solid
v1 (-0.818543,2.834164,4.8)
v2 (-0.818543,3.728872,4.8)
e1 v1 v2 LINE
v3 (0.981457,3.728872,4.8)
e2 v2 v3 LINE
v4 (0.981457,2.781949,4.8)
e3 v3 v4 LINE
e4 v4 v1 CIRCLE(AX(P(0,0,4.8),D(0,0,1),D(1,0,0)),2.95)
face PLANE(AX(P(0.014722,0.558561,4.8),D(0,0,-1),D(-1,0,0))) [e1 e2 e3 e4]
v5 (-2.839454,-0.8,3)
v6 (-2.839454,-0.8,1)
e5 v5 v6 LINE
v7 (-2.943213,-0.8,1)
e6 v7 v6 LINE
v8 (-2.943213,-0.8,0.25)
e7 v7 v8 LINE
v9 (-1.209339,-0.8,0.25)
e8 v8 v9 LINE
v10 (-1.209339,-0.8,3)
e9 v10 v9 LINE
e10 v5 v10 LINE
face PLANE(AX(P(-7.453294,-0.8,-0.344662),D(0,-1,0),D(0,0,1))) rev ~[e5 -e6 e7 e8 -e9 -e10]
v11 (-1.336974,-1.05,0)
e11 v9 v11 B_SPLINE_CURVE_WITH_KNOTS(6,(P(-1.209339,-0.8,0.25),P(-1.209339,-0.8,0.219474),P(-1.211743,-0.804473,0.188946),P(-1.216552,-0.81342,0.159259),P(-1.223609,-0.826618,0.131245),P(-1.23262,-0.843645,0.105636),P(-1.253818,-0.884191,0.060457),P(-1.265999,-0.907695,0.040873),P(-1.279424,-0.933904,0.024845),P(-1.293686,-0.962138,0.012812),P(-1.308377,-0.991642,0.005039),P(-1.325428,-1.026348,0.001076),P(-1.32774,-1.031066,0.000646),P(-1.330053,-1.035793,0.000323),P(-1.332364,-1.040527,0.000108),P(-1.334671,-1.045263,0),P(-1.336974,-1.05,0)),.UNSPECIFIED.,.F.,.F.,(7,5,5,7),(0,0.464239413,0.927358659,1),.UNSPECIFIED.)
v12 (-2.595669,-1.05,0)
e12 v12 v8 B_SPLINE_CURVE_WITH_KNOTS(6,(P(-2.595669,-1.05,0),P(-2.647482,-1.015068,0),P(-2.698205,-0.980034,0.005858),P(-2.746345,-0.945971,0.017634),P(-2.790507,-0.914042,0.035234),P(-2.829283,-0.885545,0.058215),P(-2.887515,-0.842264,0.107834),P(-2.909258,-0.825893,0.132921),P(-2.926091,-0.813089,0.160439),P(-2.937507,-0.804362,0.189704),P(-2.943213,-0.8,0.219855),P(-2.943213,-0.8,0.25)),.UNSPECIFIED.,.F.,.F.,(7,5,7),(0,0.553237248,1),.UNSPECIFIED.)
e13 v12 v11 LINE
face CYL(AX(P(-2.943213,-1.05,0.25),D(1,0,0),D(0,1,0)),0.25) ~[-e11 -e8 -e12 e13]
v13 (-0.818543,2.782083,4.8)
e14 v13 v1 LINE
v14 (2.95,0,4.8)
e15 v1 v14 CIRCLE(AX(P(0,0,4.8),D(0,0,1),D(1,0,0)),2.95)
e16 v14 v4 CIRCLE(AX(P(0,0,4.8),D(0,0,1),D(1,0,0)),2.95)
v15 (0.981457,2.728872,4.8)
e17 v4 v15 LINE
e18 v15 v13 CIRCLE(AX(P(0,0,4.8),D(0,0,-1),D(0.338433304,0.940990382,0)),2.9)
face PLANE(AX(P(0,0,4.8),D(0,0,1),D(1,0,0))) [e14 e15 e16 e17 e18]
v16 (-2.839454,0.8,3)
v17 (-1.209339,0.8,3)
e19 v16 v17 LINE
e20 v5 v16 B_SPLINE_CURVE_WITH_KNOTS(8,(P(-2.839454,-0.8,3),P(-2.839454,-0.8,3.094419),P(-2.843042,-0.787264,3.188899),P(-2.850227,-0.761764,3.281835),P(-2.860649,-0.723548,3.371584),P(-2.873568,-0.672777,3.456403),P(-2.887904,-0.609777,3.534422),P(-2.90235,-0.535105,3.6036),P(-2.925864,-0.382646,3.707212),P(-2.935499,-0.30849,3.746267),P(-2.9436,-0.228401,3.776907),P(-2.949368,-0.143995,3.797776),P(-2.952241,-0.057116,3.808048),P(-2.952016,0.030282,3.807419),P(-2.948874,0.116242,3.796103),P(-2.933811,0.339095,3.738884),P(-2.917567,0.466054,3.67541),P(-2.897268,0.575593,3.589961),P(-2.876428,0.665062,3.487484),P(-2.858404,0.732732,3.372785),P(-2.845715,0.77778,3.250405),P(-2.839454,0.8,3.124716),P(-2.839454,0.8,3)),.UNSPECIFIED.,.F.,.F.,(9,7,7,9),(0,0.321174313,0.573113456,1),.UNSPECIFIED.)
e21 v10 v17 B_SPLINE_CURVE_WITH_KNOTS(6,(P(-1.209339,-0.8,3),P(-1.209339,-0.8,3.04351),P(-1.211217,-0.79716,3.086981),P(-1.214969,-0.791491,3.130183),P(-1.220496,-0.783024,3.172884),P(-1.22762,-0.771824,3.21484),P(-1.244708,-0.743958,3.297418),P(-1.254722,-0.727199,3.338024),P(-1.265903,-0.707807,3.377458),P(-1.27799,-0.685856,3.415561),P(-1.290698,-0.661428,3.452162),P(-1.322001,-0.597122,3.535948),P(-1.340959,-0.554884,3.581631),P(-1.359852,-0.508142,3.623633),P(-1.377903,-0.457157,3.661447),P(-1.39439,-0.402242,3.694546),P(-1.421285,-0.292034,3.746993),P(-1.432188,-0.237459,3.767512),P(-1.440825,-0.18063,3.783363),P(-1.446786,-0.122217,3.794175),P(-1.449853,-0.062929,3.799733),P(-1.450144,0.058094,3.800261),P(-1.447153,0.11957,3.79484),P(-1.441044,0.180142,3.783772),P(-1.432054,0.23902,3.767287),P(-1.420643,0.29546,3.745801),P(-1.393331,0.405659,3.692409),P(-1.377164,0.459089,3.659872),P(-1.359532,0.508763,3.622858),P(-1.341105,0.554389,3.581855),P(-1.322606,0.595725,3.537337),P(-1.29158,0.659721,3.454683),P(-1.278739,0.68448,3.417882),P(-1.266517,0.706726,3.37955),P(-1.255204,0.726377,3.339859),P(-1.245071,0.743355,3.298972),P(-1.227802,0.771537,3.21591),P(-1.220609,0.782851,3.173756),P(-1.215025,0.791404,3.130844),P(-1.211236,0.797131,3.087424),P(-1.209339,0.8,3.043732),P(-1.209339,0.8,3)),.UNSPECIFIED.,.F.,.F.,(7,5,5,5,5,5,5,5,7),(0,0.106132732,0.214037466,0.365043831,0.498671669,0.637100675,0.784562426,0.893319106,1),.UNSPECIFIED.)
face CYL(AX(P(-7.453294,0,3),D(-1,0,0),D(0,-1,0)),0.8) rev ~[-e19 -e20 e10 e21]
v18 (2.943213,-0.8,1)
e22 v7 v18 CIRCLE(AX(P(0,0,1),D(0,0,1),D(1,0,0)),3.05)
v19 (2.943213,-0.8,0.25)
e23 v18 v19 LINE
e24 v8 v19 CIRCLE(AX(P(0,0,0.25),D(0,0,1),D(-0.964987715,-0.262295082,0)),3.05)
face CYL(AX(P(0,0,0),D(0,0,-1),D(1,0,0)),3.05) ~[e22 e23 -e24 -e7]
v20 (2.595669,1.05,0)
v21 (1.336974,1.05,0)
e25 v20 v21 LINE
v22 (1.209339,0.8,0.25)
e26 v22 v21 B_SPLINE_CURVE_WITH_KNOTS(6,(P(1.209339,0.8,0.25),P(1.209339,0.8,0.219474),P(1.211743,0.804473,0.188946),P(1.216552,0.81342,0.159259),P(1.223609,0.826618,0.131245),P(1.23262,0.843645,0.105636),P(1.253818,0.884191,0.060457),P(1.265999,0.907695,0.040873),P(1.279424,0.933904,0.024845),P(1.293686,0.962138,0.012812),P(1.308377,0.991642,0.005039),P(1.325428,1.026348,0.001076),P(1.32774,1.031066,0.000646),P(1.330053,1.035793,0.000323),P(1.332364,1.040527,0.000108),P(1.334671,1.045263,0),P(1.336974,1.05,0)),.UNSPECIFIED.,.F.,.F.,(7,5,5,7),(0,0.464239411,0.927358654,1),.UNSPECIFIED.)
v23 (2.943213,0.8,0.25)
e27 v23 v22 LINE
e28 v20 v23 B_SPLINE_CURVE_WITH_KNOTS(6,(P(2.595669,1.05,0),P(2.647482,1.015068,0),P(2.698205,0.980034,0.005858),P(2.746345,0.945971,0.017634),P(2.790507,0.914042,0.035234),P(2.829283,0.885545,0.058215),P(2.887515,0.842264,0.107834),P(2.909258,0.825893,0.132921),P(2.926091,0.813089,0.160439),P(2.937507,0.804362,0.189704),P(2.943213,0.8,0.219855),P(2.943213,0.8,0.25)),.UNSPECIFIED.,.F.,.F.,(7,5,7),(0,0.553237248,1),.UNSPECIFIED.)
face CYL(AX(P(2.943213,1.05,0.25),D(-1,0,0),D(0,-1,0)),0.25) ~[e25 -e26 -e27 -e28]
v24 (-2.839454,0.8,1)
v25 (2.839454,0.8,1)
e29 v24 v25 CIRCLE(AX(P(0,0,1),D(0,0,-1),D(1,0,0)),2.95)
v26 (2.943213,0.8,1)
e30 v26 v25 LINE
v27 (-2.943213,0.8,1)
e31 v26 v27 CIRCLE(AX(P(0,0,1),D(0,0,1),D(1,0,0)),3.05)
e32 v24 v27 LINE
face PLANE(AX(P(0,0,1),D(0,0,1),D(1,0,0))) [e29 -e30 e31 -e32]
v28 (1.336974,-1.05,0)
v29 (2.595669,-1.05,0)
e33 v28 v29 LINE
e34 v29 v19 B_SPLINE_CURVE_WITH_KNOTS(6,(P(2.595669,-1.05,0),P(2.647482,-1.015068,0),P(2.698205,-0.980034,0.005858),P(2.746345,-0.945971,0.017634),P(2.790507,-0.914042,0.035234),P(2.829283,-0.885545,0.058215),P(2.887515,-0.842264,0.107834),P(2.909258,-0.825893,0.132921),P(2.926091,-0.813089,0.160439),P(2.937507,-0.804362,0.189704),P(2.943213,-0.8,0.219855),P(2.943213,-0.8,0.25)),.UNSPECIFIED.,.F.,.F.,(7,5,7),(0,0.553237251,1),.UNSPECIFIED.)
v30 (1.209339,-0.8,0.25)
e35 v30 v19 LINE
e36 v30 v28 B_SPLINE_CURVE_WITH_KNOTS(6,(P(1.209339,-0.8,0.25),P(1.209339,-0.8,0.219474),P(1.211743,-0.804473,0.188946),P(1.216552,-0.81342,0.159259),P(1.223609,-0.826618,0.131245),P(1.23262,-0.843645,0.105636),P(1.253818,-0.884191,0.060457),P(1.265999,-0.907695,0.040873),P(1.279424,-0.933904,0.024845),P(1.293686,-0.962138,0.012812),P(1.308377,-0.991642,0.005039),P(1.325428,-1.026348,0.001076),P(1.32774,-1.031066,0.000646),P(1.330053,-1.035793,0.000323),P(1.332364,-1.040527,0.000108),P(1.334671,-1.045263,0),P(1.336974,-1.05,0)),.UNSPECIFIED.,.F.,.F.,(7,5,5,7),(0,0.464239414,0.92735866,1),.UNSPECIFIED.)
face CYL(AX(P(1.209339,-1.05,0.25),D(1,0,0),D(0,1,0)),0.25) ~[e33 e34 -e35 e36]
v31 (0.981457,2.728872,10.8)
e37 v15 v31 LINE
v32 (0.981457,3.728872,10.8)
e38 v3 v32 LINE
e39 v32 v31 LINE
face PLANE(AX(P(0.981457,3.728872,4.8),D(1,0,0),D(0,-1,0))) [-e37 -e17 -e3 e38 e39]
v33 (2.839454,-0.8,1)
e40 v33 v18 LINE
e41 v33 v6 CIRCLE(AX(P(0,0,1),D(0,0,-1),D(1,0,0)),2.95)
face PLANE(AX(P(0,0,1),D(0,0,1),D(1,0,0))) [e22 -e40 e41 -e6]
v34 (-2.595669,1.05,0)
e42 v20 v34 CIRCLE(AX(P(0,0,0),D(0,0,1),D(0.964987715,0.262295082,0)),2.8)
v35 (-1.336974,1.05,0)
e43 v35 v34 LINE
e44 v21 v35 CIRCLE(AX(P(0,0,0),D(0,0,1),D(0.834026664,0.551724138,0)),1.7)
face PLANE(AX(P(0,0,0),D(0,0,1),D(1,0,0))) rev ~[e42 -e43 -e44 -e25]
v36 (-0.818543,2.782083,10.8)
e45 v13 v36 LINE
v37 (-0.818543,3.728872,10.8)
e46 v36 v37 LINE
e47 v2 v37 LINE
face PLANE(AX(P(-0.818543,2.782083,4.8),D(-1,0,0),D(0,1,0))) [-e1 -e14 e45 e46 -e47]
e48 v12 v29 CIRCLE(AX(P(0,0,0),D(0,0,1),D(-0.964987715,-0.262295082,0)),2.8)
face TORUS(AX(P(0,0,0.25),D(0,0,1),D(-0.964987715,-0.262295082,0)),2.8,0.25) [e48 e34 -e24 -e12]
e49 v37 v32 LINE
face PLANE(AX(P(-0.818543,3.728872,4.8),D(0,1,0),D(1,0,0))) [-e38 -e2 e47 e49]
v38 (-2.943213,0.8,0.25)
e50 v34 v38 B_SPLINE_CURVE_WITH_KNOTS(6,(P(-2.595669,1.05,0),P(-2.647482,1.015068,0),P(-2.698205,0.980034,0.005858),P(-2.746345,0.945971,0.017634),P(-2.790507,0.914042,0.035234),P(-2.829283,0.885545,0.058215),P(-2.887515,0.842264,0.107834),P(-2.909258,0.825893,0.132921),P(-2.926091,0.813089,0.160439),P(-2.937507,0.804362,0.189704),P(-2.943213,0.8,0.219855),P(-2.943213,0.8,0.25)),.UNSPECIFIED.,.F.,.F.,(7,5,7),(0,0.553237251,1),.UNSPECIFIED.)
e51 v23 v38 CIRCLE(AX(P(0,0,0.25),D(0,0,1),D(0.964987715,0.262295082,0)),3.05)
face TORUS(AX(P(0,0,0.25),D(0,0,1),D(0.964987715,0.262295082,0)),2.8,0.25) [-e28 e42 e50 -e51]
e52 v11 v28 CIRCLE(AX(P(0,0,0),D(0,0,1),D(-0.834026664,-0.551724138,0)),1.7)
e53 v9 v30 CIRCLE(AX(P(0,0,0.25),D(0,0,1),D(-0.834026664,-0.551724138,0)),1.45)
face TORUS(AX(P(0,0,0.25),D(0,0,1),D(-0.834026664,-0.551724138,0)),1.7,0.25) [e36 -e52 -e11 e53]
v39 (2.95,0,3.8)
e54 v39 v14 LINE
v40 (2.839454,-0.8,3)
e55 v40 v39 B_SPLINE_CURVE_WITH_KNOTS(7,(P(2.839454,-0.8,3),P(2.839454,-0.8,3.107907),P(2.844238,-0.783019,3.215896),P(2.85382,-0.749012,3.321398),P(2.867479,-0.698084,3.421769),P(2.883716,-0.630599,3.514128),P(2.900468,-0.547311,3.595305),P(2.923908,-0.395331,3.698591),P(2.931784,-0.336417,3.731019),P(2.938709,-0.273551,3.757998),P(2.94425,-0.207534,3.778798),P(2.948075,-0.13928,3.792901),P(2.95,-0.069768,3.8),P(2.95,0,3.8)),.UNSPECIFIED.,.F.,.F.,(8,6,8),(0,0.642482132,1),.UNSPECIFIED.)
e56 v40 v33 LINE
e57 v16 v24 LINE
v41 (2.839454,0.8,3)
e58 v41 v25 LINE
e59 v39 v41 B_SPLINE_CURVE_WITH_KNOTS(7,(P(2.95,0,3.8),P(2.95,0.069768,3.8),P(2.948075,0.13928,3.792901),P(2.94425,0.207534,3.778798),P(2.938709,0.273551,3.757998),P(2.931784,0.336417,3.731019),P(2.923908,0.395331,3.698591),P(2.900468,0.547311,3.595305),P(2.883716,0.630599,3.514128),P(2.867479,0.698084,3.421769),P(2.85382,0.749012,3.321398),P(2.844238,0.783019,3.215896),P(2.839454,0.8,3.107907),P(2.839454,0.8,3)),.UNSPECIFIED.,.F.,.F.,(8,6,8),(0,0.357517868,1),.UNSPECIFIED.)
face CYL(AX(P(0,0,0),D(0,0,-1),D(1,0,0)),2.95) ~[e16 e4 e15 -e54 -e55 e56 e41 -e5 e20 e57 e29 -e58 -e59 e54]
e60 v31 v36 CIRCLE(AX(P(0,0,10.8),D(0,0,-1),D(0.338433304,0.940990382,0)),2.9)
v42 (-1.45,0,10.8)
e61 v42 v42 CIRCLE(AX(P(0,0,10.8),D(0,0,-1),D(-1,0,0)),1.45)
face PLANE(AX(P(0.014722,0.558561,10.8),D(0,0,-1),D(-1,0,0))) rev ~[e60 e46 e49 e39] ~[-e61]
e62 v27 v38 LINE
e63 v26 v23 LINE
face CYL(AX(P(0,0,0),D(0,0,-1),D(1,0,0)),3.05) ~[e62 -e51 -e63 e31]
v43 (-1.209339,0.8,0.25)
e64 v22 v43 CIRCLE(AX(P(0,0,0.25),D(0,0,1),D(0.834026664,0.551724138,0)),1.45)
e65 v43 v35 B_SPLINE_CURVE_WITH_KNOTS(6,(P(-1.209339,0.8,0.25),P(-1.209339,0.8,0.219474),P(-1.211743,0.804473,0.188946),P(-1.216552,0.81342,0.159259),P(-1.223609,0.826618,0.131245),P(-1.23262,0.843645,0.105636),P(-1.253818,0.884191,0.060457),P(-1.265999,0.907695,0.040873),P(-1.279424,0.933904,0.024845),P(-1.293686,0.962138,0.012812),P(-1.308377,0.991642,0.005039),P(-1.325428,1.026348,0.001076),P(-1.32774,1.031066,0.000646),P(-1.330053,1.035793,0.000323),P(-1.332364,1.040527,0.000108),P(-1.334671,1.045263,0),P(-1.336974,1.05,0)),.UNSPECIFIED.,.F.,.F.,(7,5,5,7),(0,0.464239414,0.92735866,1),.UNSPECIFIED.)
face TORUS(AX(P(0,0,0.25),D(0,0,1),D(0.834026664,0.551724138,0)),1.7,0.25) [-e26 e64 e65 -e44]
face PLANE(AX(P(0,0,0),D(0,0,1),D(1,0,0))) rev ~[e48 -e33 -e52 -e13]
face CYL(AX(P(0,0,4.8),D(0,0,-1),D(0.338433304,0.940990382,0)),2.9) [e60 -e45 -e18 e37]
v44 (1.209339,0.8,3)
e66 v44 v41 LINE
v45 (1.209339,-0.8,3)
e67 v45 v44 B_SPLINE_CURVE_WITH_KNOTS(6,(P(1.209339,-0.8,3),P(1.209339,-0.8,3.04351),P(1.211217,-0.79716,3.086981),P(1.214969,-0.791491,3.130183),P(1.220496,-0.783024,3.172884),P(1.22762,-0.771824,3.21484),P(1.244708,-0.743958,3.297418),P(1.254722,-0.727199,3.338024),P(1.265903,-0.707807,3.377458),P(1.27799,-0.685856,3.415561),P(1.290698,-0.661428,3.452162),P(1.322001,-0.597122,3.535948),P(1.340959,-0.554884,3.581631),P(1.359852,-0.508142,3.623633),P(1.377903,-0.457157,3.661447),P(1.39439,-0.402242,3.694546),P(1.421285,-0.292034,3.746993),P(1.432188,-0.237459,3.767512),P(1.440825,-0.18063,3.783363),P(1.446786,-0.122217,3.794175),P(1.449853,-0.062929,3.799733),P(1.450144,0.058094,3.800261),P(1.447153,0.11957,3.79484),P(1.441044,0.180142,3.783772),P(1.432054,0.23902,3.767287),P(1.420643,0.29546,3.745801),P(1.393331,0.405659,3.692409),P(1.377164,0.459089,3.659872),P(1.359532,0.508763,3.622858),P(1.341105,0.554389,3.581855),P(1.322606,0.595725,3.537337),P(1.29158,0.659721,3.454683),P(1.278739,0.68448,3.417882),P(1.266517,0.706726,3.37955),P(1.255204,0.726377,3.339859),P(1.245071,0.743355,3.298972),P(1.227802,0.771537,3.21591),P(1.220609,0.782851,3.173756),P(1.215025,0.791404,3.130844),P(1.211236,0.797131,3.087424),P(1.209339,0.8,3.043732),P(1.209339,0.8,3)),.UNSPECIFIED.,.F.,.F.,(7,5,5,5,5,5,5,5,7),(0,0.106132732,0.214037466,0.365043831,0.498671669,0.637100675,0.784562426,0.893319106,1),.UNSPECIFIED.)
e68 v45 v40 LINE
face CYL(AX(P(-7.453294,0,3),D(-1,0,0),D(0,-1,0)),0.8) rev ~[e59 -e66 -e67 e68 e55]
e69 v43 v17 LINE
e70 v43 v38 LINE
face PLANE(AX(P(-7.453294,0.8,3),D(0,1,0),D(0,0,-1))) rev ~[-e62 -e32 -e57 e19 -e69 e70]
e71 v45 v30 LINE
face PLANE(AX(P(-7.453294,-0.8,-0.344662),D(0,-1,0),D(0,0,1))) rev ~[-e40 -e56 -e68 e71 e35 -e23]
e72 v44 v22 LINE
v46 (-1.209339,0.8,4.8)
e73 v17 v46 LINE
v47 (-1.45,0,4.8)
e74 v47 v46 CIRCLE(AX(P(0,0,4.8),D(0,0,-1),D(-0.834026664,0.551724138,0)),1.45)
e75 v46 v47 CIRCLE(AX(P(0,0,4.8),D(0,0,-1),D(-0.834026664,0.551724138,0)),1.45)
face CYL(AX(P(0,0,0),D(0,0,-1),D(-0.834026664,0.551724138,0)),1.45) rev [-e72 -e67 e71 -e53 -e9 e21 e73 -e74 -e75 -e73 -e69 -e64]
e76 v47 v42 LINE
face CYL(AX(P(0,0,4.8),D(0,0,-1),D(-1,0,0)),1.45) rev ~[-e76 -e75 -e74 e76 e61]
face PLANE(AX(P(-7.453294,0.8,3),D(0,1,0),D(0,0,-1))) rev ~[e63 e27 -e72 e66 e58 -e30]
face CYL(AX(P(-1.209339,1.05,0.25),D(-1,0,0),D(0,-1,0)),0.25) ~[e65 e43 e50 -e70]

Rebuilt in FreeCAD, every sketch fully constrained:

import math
import FreeCAD as App
import Part
import Sketcher
Q = App.Units.Quantity


def edges_at(feature, points):
    """Names of the edges that pass closest to the given points."""
    edges = feature.Shape.Edges
    near = lambda p: min(range(len(edges)), key=lambda i: edges[i].distToShape(Part.Vertex(*p))[0])
    return sorted({f"Edge{near(p) + 1}" for p in points})

doc = App.newDocument("Part")
body = doc.addObject("PartDesign::Body", "Body")

sketch1 = body.newObject("Sketcher::SketchObject", "Sketch")
sketch1.AttachmentSupport = (doc.getObject("XY_Plane"), [""])
sketch1.MapMode = "FlatFace"
sketch1.addGeometry(Part.Circle(App.Vector(0, 0, 0), App.Vector(0, 0, 1), 3), False)
sketch1.addConstraint([
    Sketcher.Constraint("Coincident", 0, 3, -1, 1),
    Sketcher.Constraint("Diameter", 0, Q("5.9 mm")),
])
pad1 = body.newObject("PartDesign::Pad", "Pad")
pad1.Profile = sketch1
pad1.Length = 4.8

sketch2 = body.newObject("Sketcher::SketchObject", "Sketch001")
sketch2.AttachmentSupport = (doc.getObject("XY_Plane"), [""])
sketch2.MapMode = "FlatFace"
sketch2.addGeometry(Part.Circle(App.Vector(0, 0, 0), App.Vector(0, 0, 1), 3), False)
sketch2.addConstraint([
    Sketcher.Constraint("Coincident", 0, 3, -1, 1),
    Sketcher.Constraint("Diameter", 0, Q("6.1 mm")),
])
pad2 = body.newObject("PartDesign::Pad", "Pad001")
pad2.Profile = sketch2
pad2.Length = 1

sketch3 = body.newObject("Sketcher::SketchObject", "Sketch002")
sketch3.AttachmentSupport = (doc.getObject("YZ_Plane"), [""])
sketch3.MapMode = "FlatFace"
sketch3.addGeometry([
    Part.LineSegment(App.Vector(-0.8, 3, 0), App.Vector(-0.8, -0.3, 0)),
    Part.ArcOfCircle(Part.Circle(App.Vector(0, -0.3, 0), App.Vector(0, 0, 1), 0.8), math.radians(180), math.radians(360)),
    Part.LineSegment(App.Vector(0.8, -0.3, 0), App.Vector(0.8, 3, 0)),
    Part.ArcOfCircle(Part.Circle(App.Vector(0, 3, 0), App.Vector(0, 0, 1), 0.8), math.radians(0), math.radians(180)),
], False)
sketch3.addConstraint([
    Sketcher.Constraint("Tangent", 0, 2, 1, 1),
    Sketcher.Constraint("Tangent", 1, 2, 2, 1),
    Sketcher.Constraint("Tangent", 2, 2, 3, 1),
    Sketcher.Constraint("Tangent", 3, 2, 0, 1),
    Sketcher.Constraint("Vertical", 0),
    Sketcher.Constraint("Vertical", 2),
    Sketcher.Constraint("PointOnObject", 1, 3, -2),
    Sketcher.Constraint("Radius", 1, Q("0.8 mm")),
    Sketcher.Constraint("DistanceY", -1, 1, 3, 3, Q("3 mm")),
    Sketcher.Constraint("DistanceY", 0, 2, 0, 1, Q("3.344662 mm")),
])
pocket1 = body.newObject("PartDesign::Pocket", "Pocket")
pocket1.Profile = sketch3
pocket1.Type = "ThroughAll"
pocket1.Midplane = True

sketch4 = body.newObject("Sketcher::SketchObject", "Sketch003")
sketch4.AttachmentSupport = (doc.getObject("XY_Plane"), [""])
sketch4.MapMode = "FlatFace"
sketch4.addGeometry(Part.Circle(App.Vector(0, 0, 0), App.Vector(0, 0, 1), 1.4), False)
sketch4.addConstraint([
    Sketcher.Constraint("Coincident", 0, 3, -1, 1),
    Sketcher.Constraint("Diameter", 0, Q("2.9 mm")),
])
pocket2 = body.newObject("PartDesign::Pocket", "Pocket001")
pocket2.Profile = sketch4
pocket2.Length = 9
pocket2.Reversed = True

sketch5 = body.newObject("Sketcher::SketchObject", "Sketch004")
sketch5.AttachmentSupport = (doc.getObject("XY_Plane"), [""])
sketch5.MapMode = "FlatFace"
sketch5.AttachmentOffset = App.Placement(App.Vector(0, 0, 4.8), App.Rotation())
sketch5.addGeometry([
    Part.LineSegment(App.Vector(1, 3.7, 0), App.Vector(-0.8, 3.7, 0)),
    Part.LineSegment(App.Vector(-0.8, 3.7, 0), App.Vector(-0.8, 2.8, 0)),
    Part.ArcOfCircle(Part.Circle(App.Vector(0, 0, 0), App.Vector(0, 0, 1), 2.9), math.radians(106), math.radians(430)),
    Part.LineSegment(App.Vector(1, 2.7, 0), App.Vector(1, 3.7, 0)),
], False)
sketch5.addConstraint([
    Sketcher.Constraint("Coincident", 0, 2, 1, 1),
    Sketcher.Constraint("Coincident", 1, 2, 2, 1),
    Sketcher.Constraint("Coincident", 2, 2, 3, 1),
    Sketcher.Constraint("Coincident", 3, 2, 0, 1),
    Sketcher.Constraint("Horizontal", 0),
    Sketcher.Constraint("Vertical", 1),
    Sketcher.Constraint("Vertical", 3),
    Sketcher.Constraint("Coincident", 2, 3, -1, 1),
    Sketcher.Constraint("Radius", 2, Q("2.9 mm")),
    Sketcher.Constraint("DistanceY", 3, 1, 3, 2, Q("1 mm")),
    Sketcher.Constraint("DistanceX", 0, 2, 0, 1, Q("1.8 mm")),
    Sketcher.Constraint("DistanceY", 1, 2, 1, 1, Q("0.946789 mm")),
])
pad3 = body.newObject("PartDesign::Pad", "Pad002")
pad3.Profile = sketch5
pad3.Length = 6

sketch6 = body.newObject("Sketcher::SketchObject", "Sketch005")
sketch6.AttachmentSupport = (doc.getObject("XY_Plane"), [""])
sketch6.MapMode = "FlatFace"
sketch6.AttachmentOffset = App.Placement(App.Vector(0, 0, 4.8), App.Rotation())
sketch6.addGeometry(Part.Circle(App.Vector(0, 0, 0), App.Vector(0, 0, 1), 1.4), False)
sketch6.addConstraint([
    Sketcher.Constraint("Coincident", 0, 3, -1, 1),
    Sketcher.Constraint("Diameter", 0, Q("2.9 mm")),
])
pocket3 = body.newObject("PartDesign::Pocket", "Pocket002")
pocket3.Profile = sketch6
pocket3.Type = "ThroughAll"
pocket3.Reversed = True
doc.recompute()

fillet = body.newObject("PartDesign::Fillet", "Fillet")
fillet.Base = (pocket3, edges_at(pocket3, [
    (0, 3.05, 0),
    (0, -3.05, 0),
    (2.076, 0.8, 0),
    (-2.076, -0.8, 0),
    (-2.076, 0.8, 0),
    (2.076, -0.8, 0),
    (0, 1.45, 0),
    (0, -1.45, 0),
]))
fillet.Radius = 0.25

doc.recompute()
